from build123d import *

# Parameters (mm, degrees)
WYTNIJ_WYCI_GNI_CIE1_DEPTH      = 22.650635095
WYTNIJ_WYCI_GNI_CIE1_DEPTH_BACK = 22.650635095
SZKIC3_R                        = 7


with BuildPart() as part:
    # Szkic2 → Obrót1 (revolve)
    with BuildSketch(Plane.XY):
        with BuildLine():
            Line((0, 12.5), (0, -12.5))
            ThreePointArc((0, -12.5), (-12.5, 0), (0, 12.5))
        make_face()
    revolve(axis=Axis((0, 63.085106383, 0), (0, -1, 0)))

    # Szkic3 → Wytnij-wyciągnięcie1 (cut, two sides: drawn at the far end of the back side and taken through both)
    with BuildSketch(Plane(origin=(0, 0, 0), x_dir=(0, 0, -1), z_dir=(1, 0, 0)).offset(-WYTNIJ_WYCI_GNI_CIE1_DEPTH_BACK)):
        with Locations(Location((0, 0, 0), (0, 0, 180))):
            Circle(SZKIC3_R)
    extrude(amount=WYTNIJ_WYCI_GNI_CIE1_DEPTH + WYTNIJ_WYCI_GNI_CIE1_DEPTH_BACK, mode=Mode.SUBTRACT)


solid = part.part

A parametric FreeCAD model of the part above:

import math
import FreeCAD as App
import Part
import Sketcher
from FreeCAD import Vector
Q = App.Units.Quantity

doc = App.newDocument("Part")
params = doc.addObject("Spreadsheet::Sheet", "Params")
for row, (alias, value) in enumerate([
    ("sketch1_radius", "12.5 mm"),
    ("revolution_angle", "360 deg"),
    ("sketch2_diameter", "14 mm"),
], start=1):
    params.set(f"A{row}", alias)
    params.set(f"B{row}", "=" + value)
    params.setAlias(f"B{row}", alias)

body = doc.addObject("PartDesign::Body", "Body")

sketch1 = body.newObject("Sketcher::SketchObject", "Sketch")
sketch1.AttachmentSupport = (doc.getObject("XY_Plane"), [""])
sketch1.MapMode = "FlatFace"
sketch1.addGeometry([
    Part.LineSegment(Vector(0, -12.5, 0), Vector(0, 12.5, 0)),
    Part.ArcOfCircle(Part.Circle(Vector(0, 0, 0), Vector(0, 0, 1), 12.5), math.radians(90), math.radians(270)),
], False)
sketch1.addConstraint([
    Sketcher.Constraint("Coincident", 0, 1, 1, 2),
    Sketcher.Constraint("Coincident", 1, 1, 0, 2),
    Sketcher.Constraint("Vertical", 0),
    Sketcher.Constraint("Coincident", 1, 3, -1, 1),
    Sketcher.Constraint("PointOnObject", 0, 1, -2),
    Sketcher.Constraint("Radius", 1, Q("12.5 mm")),
])
sketch1.setExpression("Constraints[5]", "Params.sketch1_radius")
revolution = body.newObject("PartDesign::Revolution", "Revolution")
revolution.Profile = sketch1
revolution.ReferenceAxis = (sketch1, ["V_Axis"])
revolution.setExpression("Angle", "Params.revolution_angle")

sketch2 = body.newObject("Sketcher::SketchObject", "Sketch001")
sketch2.AttachmentSupport = (doc.getObject("YZ_Plane"), [""])
sketch2.MapMode = "FlatFace"
sketch2.addGeometry(Part.Circle(Vector(0, 0, 0), Vector(0, 0, 1), 7), False)
sketch2.addConstraint([
    Sketcher.Constraint("Coincident", 0, 3, -1, 1),
    Sketcher.Constraint("Diameter", 0, Q("14 mm")),
])
sketch2.setExpression("Constraints[1]", "Params.sketch2_diameter")
pocket1 = body.newObject("PartDesign::Pocket", "Pocket")
pocket1.Profile = sketch2
pocket1.Type = "ThroughAll"
pocket1.Midplane = True

doc.recompute()
